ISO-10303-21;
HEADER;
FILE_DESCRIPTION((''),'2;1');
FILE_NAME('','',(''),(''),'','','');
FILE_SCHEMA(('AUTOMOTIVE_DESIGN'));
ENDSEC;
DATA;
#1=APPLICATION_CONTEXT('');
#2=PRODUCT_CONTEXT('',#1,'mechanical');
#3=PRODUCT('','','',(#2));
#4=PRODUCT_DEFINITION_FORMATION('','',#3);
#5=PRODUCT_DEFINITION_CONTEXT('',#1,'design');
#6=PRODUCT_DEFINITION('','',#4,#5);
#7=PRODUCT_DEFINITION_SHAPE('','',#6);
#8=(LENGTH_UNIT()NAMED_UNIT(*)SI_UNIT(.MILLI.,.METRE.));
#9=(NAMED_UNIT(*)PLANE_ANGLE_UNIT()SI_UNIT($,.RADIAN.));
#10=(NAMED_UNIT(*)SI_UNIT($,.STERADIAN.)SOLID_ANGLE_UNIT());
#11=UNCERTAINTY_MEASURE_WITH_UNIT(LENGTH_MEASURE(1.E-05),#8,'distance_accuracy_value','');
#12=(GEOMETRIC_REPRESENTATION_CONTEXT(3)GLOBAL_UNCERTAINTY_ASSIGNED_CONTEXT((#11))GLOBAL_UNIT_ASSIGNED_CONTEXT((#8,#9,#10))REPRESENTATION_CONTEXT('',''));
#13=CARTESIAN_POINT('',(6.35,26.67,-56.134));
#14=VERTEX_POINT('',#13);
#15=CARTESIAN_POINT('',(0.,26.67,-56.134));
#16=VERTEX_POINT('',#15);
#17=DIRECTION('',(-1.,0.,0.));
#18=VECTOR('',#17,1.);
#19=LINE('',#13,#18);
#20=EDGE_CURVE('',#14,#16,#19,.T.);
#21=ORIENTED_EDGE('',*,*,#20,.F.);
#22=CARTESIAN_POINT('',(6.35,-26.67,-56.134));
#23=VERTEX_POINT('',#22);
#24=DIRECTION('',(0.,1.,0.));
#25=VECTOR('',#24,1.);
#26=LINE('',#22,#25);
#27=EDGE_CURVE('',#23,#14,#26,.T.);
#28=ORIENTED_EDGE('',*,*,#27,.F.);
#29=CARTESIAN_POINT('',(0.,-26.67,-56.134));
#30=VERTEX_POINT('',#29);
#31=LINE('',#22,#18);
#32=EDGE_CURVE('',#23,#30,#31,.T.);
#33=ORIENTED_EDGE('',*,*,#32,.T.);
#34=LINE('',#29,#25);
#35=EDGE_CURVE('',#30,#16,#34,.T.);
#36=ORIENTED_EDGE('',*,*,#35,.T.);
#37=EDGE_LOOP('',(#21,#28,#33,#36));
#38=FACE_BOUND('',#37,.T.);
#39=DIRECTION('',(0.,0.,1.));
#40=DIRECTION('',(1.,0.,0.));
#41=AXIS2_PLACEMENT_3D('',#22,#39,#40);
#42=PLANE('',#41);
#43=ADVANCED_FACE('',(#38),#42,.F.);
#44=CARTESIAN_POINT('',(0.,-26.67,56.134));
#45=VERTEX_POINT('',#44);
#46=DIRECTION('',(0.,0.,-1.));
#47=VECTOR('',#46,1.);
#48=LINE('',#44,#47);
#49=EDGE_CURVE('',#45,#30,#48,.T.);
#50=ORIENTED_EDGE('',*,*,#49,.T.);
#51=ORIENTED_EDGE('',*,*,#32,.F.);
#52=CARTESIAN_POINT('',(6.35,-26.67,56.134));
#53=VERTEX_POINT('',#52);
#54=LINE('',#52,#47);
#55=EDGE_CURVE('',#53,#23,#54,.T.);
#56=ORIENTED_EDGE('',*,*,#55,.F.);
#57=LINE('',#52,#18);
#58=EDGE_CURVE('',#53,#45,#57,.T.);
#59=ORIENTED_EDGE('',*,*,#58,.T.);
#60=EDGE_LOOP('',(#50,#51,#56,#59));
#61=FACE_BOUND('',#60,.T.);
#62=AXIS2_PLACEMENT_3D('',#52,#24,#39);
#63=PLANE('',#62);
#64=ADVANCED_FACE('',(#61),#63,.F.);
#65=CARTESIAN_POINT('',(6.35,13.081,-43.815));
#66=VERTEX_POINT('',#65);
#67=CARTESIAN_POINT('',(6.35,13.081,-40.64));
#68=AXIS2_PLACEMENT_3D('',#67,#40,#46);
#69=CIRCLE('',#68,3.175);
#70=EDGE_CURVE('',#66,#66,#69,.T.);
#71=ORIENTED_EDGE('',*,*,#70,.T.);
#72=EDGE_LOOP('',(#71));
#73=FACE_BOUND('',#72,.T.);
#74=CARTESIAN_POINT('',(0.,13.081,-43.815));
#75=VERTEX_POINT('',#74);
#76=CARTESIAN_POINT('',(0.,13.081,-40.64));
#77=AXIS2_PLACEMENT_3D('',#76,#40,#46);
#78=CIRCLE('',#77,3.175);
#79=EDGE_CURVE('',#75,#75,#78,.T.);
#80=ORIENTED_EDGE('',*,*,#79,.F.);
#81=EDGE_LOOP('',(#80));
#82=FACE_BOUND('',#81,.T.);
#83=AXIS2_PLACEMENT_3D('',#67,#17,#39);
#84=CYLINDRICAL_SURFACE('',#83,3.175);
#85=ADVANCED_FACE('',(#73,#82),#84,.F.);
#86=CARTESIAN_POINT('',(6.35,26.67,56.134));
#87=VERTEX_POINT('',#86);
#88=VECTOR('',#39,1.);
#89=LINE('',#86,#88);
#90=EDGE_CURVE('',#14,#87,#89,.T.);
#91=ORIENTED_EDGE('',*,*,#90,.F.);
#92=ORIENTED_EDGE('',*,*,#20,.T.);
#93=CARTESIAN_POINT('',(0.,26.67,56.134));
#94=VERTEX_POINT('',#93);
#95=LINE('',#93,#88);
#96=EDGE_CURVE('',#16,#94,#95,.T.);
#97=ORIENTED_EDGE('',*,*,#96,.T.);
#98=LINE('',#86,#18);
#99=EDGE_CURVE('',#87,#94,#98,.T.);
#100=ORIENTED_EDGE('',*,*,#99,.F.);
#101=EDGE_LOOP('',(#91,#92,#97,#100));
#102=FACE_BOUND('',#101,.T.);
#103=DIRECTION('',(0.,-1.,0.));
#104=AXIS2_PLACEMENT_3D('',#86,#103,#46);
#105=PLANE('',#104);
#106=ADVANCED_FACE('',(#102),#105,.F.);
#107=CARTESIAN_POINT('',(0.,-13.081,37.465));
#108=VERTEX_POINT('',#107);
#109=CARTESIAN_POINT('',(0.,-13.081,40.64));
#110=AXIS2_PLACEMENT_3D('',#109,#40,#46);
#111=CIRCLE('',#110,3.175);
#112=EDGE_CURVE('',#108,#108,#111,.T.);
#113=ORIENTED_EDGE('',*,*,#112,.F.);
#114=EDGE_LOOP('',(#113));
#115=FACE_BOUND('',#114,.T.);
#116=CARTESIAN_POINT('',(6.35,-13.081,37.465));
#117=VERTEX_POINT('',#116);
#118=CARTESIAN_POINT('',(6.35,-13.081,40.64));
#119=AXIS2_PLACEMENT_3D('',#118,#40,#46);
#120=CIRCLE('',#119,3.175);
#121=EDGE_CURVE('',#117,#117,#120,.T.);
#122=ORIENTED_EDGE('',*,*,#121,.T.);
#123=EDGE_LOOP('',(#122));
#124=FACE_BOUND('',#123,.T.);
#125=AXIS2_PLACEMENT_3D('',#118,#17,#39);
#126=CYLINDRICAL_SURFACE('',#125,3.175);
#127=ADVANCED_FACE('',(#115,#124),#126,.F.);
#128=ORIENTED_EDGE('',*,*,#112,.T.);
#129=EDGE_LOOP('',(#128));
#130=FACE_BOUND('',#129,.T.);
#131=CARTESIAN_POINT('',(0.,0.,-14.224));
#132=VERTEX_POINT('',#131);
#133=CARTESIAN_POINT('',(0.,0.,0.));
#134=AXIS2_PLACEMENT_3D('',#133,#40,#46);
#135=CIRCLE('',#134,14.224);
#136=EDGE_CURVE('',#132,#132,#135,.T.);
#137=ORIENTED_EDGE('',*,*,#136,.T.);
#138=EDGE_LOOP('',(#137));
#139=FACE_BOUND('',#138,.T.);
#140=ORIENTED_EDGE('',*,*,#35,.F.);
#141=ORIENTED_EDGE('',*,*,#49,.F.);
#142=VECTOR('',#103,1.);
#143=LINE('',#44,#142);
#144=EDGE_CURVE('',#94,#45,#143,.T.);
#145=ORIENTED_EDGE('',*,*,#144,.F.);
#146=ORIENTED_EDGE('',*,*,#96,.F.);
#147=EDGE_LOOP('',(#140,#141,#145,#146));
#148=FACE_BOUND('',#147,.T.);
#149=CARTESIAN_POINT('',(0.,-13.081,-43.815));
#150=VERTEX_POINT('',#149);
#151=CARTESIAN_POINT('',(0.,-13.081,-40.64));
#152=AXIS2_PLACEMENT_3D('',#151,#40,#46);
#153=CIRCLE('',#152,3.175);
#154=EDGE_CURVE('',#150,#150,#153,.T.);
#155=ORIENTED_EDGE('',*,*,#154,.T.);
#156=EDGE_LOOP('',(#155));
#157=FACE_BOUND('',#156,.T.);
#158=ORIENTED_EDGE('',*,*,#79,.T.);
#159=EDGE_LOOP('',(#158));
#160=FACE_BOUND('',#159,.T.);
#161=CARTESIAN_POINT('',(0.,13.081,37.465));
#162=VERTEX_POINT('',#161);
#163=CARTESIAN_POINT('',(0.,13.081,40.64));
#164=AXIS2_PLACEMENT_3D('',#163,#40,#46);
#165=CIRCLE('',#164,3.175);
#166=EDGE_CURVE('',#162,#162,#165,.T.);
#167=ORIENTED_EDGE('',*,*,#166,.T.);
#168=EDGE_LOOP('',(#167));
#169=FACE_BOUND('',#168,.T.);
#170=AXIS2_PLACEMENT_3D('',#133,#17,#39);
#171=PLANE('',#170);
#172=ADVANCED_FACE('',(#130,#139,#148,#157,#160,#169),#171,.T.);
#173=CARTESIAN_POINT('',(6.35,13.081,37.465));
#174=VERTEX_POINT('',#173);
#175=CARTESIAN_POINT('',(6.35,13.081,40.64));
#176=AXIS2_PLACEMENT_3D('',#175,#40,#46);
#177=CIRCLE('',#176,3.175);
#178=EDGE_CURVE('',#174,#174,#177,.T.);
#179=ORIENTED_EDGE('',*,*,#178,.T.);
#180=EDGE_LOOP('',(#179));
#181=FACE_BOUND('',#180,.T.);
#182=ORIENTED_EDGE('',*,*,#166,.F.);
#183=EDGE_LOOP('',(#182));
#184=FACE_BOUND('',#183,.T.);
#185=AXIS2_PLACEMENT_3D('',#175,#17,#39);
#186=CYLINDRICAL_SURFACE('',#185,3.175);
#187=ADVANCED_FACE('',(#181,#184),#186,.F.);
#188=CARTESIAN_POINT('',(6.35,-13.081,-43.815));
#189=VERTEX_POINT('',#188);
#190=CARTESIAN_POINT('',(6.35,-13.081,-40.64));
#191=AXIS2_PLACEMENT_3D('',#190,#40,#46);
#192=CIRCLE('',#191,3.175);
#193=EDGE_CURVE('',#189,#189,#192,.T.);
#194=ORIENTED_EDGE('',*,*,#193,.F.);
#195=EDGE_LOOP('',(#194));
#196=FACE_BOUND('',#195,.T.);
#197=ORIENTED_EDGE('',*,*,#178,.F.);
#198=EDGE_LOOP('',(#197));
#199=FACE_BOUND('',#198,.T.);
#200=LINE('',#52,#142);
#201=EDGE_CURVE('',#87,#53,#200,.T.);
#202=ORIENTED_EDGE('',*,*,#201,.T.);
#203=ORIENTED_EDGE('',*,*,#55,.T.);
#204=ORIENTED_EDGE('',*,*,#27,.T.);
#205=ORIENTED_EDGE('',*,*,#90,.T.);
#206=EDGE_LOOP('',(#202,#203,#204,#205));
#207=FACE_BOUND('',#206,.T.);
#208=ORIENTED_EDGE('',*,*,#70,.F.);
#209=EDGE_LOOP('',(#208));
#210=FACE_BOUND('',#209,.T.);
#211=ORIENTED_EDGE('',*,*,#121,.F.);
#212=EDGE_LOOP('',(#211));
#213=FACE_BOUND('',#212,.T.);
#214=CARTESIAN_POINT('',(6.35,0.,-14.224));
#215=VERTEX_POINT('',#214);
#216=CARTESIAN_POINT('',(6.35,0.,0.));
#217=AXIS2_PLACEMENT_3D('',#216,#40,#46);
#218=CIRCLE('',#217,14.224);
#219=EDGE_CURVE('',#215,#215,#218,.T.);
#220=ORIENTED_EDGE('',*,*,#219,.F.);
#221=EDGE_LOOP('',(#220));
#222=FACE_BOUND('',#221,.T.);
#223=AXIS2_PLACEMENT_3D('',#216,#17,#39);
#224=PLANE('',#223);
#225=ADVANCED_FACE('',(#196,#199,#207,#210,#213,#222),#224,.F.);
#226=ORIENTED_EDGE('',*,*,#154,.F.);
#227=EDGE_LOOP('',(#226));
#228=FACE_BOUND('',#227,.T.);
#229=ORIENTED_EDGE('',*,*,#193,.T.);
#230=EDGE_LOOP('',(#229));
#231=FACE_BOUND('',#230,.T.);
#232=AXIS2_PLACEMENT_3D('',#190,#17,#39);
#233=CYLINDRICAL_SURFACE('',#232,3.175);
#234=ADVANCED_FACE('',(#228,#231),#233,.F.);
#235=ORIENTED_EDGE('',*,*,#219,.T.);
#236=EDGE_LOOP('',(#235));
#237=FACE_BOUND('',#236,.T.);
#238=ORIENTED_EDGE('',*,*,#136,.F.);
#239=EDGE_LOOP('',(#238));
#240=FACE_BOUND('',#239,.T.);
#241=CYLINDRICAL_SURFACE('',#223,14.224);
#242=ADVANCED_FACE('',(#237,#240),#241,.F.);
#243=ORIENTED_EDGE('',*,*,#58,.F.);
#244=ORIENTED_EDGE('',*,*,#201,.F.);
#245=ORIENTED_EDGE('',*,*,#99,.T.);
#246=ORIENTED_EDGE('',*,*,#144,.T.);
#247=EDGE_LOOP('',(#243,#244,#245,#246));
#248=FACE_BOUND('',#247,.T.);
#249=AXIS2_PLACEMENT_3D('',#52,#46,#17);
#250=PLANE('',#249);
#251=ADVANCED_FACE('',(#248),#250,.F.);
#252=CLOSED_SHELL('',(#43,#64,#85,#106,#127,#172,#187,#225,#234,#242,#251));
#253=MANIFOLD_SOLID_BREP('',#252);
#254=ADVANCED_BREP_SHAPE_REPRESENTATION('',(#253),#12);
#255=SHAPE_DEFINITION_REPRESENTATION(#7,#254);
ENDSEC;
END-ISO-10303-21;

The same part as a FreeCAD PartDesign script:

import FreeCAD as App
import Part
import Sketcher
from FreeCAD import Vector
Q = App.Units.Quantity


def add_polygon(sketch, points):
    """Adds a closed chain of lines whose ends are joined by coincident constraints."""
    first, n = sketch.GeometryCount, len(points)
    for a, b in zip(points, points[1:] + points[:1]):
        sketch.addGeometry(Part.LineSegment(App.Vector(*a, 0), App.Vector(*b, 0)), False)
    for i in range(n):
        sketch.addConstraint(Sketcher.Constraint("Coincident", first + i, 2, first + (i + 1) % n, 1))

doc = App.newDocument("Part")
body = doc.addObject("PartDesign::Body", "Body")

# Sketch on YZ plane
sketch1 = body.newObject("Sketcher::SketchObject", "Sketch")
sketch1.AttachmentSupport = (doc.getObject("YZ_Plane"), [""])
sketch1.MapMode = "FlatFace"
add_polygon(sketch1, [(26.7, 56.1), (-26.7, 56.1), (-26.7, -56.1), (26.7, -56.1)])  # lines 0-3
sketch1.addGeometry(Part.Circle(Vector(-13.1, 40.6, 0), Vector(0, 0, 1), 3.2), False)  # 4
sketch1.addGeometry(Part.Circle(Vector(-13.1, -40.6, 0), Vector(0, 0, 1), 3.2), False)  # 5
sketch1.addGeometry(Part.Circle(Vector(13.1, 40.6, 0), Vector(0, 0, 1), 3.2), False)  # 6
sketch1.addGeometry(Part.Circle(Vector(0, 0, 0), Vector(0, 0, 1), 14.2), False)  # 7
sketch1.addGeometry(Part.Circle(Vector(13.1, -40.6, 0), Vector(0, 0, 1), 3.2), False)  # 8
sketch1.addConstraint([
    Sketcher.Constraint("Horizontal", 0),
    Sketcher.Constraint("Vertical", 1),
    Sketcher.Constraint("Horizontal", 2),
    Sketcher.Constraint("Vertical", 3),
    Sketcher.Constraint("Coincident", 7, 3, -1, 1),
    Sketcher.Constraint("Equal", 4, 5),
    Sketcher.Constraint("Equal", 5, 6),
    Sketcher.Constraint("Equal", 6, 8),
    Sketcher.Constraint("Symmetric", 5, 3, 6, 3, -1, 1),
    Sketcher.Constraint("Symmetric", 4, 3, 8, 3, -1, 1),
    Sketcher.Constraint("Symmetric", 0, 2, 2, 2, -1, 1),
    Sketcher.Constraint("Symmetric", 4, 3, 6, 3, -2),
    Sketcher.Constraint("Diameter", 4, Q("0.25 in")),
    Sketcher.Constraint("Diameter", 7, Q("1.12 in")),
    Sketcher.Constraint("DistanceX", 0, 2, 0, 1, Q("2.1 in")),
    Sketcher.Constraint("DistanceY", 1, 2, 1, 1, Q("4.42 in")),
    Sketcher.Constraint("DistanceY", -1, 1, 4, 3, Q("1.6 in")),
    Sketcher.Constraint("DistanceX", 4, 3, 6, 3, Q("1.03 in")),
])
pad1 = body.newObject("PartDesign::Pad", "Pad")
pad1.Profile = sketch1
pad1.Length = Q("0.25 in")

doc.recompute()
